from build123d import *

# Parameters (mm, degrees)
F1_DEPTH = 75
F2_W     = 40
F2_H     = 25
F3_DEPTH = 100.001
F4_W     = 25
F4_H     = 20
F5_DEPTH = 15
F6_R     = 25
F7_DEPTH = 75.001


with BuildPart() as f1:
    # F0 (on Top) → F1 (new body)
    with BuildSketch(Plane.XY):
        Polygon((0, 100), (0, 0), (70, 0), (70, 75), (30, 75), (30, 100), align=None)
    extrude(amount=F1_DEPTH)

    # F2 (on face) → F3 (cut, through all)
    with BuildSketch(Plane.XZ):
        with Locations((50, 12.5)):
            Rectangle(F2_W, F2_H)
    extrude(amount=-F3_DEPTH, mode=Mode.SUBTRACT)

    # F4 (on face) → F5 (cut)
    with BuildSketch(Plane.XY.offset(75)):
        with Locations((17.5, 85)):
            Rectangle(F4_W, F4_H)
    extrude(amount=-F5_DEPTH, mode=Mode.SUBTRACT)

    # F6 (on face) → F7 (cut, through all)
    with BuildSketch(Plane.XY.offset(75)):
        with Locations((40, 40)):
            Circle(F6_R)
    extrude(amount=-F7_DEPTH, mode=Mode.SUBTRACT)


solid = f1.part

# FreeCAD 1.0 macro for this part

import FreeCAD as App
import Part
import Sketcher

V = App.Vector
Q = App.Units.Quantity

doc = App.newDocument("Part")
params = doc.addObject("Spreadsheet::Sheet", "Params")
for row, (alias, value) in enumerate([
    ("sketch1_width", "70 mm"),
    ("sketch1_width2", "40 mm"),
    ("sketch1_height", "100 mm"),
    ("sketch1_height2", "75 mm"),
    ("pad1_length", "75 mm"),
    ("sketch2_width", "40 mm"),
    ("sketch2_height", "25 mm"),
    ("sketch3_width", "25 mm"),
    ("sketch3_height", "20 mm"),
    ("pocket2_length", "15 mm"),
    ("sketch4_diameter", "50 mm"),
], start=1):
    params.set(f"A{row}", alias)
    params.set(f"B{row}", "=" + value)
    params.setAlias(f"B{row}", alias)

body = doc.addObject("PartDesign::Body", "Body")

sketch1 = body.newObject("Sketcher::SketchObject", "Sketch")
sketch1.AttachmentSupport = (doc.getObject("XY_Plane"), [""])
sketch1.MapMode = "FlatFace"
sketch1.addGeometry([
    Part.LineSegment(V(0, 100, 0), V(0, 0, 0)),
    Part.LineSegment(V(0, 0, 0), V(70, 0, 0)),
    Part.LineSegment(V(70, 0, 0), V(70, 75, 0)),
    Part.LineSegment(V(70, 75, 0), V(30, 75, 0)),
    Part.LineSegment(V(30, 75, 0), V(30, 100, 0)),
    Part.LineSegment(V(30, 100, 0), V(0, 100, 0)),
], False)
sketch1.addConstraint([
    Sketcher.Constraint("Coincident", 0, 2, 1, 1),
    Sketcher.Constraint("Coincident", 1, 2, 2, 1),
    Sketcher.Constraint("Coincident", 2, 2, 3, 1),
    Sketcher.Constraint("Coincident", 3, 2, 4, 1),
    Sketcher.Constraint("Coincident", 4, 2, 5, 1),
    Sketcher.Constraint("Coincident", 5, 2, 0, 1),
    Sketcher.Constraint("Vertical", 0),
    Sketcher.Constraint("Horizontal", 1),
    Sketcher.Constraint("Vertical", 2),
    Sketcher.Constraint("Horizontal", 3),
    Sketcher.Constraint("Vertical", 4),
    Sketcher.Constraint("Horizontal", 5),
    Sketcher.Constraint("Coincident", 0, 2, -1, 1),
    Sketcher.Constraint("DistanceX", 1, 1, 1, 2, Q("70 mm")),
    Sketcher.Constraint("DistanceX", 3, 2, 3, 1, Q("40 mm")),
    Sketcher.Constraint("DistanceY", 0, 2, 0, 1, Q("100 mm")),
    Sketcher.Constraint("DistanceY", 2, 1, 2, 2, Q("75 mm")),
])
sketch1.setExpression("Constraints[13]", "Params.sketch1_width")
sketch1.setExpression("Constraints[14]", "Params.sketch1_width2")
sketch1.setExpression("Constraints[15]", "Params.sketch1_height")
sketch1.setExpression("Constraints[16]", "Params.sketch1_height2")
pad1 = body.newObject("PartDesign::Pad", "Pad")
pad1.Profile = sketch1
pad1.setExpression("Length", "Params.pad1_length")

sketch2 = body.newObject("Sketcher::SketchObject", "Sketch001")
sketch2.AttachmentSupport = (doc.getObject("XZ_Plane"), [""])
sketch2.MapMode = "FlatFace"
sketch2.addGeometry([
    Part.LineSegment(V(30, 25, 0), V(30, 0, 0)),
    Part.LineSegment(V(30, 0, 0), V(70, 0, 0)),
    Part.LineSegment(V(70, 0, 0), V(70, 25, 0)),
    Part.LineSegment(V(70, 25, 0), V(30, 25, 0)),
], False)
sketch2.addConstraint([
    Sketcher.Constraint("Coincident", 0, 2, 1, 1),
    Sketcher.Constraint("Coincident", 1, 2, 2, 1),
    Sketcher.Constraint("Coincident", 2, 2, 3, 1),
    Sketcher.Constraint("Coincident", 3, 2, 0, 1),
    Sketcher.Constraint("Vertical", 0),
    Sketcher.Constraint("Horizontal", 1),
    Sketcher.Constraint("Vertical", 2),
    Sketcher.Constraint("Horizontal", 3),
    Sketcher.Constraint("PointOnObject", 0, 2, -1),
    Sketcher.Constraint("DistanceX", 1, 1, 1, 2, Q("40 mm")),
    Sketcher.Constraint("DistanceY", 0, 2, 0, 1, Q("25 mm")),
    Sketcher.Constraint("DistanceX", -1, 1, 0, 2, Q("30 mm")),
])
sketch2.setExpression("Constraints[9]", "Params.sketch2_width")
sketch2.setExpression("Constraints[10]", "Params.sketch2_height")
pocket1 = body.newObject("PartDesign::Pocket", "Pocket")
pocket1.Profile = sketch2
pocket1.Type = "ThroughAll"

sketch3 = body.newObject("Sketcher::SketchObject", "Sketch002")
sketch3.AttachmentSupport = (doc.getObject("XY_Plane"), [""])
sketch3.MapMode = "FlatFace"
sketch3.AttachmentOffset = App.Placement(V(0, 0, 75), App.Rotation())
sketch3.addGeometry([
    Part.LineSegment(V(5, 95, 0), V(5, 75, 0)),
    Part.LineSegment(V(5, 75, 0), V(30, 75, 0)),
    Part.LineSegment(V(30, 75, 0), V(30, 95, 0)),
    Part.LineSegment(V(30, 95, 0), V(5, 95, 0)),
], False)
sketch3.addConstraint([
    Sketcher.Constraint("Coincident", 0, 2, 1, 1),
    Sketcher.Constraint("Coincident", 1, 2, 2, 1),
    Sketcher.Constraint("Coincident", 2, 2, 3, 1),
    Sketcher.Constraint("Coincident", 3, 2, 0, 1),
    Sketcher.Constraint("Vertical", 0),
    Sketcher.Constraint("Horizontal", 1),
    Sketcher.Constraint("Vertical", 2),
    Sketcher.Constraint("Horizontal", 3),
    Sketcher.Constraint("DistanceX", 1, 1, 1, 2, Q("25 mm")),
    Sketcher.Constraint("DistanceY", 0, 2, 0, 1, Q("20 mm")),
    Sketcher.Constraint("DistanceX", -1, 1, 0, 2, Q("5 mm")),
    Sketcher.Constraint("DistanceY", -1, 1, 0, 2, Q("75 mm")),
])
sketch3.setExpression("Constraints[8]", "Params.sketch3_width")
sketch3.setExpression("Constraints[9]", "Params.sketch3_height")
pocket2 = body.newObject("PartDesign::Pocket", "Pocket001")
pocket2.Profile = sketch3
pocket2.setExpression("Length", "Params.pocket2_length")

sketch4 = body.newObject("Sketcher::SketchObject", "Sketch003")
sketch4.AttachmentSupport = (doc.getObject("XY_Plane"), [""])
sketch4.MapMode = "FlatFace"
sketch4.AttachmentOffset = App.Placement(V(0, 0, 75), App.Rotation())
sketch4.addGeometry(Part.Circle(V(40, 40, 0), V(0, 0, 1), 25), False)
sketch4.addConstraint([
    Sketcher.Constraint("Diameter", 0, Q("50 mm")),
    Sketcher.Constraint("DistanceX", -1, 1, 0, 3, Q("40 mm")),
    Sketcher.Constraint("DistanceY", -1, 1, 0, 3, Q("40 mm")),
])
sketch4.setExpression("Constraints[0]", "Params.sketch4_diameter")
pocket3 = body.newObject("PartDesign::Pocket", "Pocket002")
pocket3.Profile = sketch4
pocket3.Type = "ThroughAll"

doc.recompute()
